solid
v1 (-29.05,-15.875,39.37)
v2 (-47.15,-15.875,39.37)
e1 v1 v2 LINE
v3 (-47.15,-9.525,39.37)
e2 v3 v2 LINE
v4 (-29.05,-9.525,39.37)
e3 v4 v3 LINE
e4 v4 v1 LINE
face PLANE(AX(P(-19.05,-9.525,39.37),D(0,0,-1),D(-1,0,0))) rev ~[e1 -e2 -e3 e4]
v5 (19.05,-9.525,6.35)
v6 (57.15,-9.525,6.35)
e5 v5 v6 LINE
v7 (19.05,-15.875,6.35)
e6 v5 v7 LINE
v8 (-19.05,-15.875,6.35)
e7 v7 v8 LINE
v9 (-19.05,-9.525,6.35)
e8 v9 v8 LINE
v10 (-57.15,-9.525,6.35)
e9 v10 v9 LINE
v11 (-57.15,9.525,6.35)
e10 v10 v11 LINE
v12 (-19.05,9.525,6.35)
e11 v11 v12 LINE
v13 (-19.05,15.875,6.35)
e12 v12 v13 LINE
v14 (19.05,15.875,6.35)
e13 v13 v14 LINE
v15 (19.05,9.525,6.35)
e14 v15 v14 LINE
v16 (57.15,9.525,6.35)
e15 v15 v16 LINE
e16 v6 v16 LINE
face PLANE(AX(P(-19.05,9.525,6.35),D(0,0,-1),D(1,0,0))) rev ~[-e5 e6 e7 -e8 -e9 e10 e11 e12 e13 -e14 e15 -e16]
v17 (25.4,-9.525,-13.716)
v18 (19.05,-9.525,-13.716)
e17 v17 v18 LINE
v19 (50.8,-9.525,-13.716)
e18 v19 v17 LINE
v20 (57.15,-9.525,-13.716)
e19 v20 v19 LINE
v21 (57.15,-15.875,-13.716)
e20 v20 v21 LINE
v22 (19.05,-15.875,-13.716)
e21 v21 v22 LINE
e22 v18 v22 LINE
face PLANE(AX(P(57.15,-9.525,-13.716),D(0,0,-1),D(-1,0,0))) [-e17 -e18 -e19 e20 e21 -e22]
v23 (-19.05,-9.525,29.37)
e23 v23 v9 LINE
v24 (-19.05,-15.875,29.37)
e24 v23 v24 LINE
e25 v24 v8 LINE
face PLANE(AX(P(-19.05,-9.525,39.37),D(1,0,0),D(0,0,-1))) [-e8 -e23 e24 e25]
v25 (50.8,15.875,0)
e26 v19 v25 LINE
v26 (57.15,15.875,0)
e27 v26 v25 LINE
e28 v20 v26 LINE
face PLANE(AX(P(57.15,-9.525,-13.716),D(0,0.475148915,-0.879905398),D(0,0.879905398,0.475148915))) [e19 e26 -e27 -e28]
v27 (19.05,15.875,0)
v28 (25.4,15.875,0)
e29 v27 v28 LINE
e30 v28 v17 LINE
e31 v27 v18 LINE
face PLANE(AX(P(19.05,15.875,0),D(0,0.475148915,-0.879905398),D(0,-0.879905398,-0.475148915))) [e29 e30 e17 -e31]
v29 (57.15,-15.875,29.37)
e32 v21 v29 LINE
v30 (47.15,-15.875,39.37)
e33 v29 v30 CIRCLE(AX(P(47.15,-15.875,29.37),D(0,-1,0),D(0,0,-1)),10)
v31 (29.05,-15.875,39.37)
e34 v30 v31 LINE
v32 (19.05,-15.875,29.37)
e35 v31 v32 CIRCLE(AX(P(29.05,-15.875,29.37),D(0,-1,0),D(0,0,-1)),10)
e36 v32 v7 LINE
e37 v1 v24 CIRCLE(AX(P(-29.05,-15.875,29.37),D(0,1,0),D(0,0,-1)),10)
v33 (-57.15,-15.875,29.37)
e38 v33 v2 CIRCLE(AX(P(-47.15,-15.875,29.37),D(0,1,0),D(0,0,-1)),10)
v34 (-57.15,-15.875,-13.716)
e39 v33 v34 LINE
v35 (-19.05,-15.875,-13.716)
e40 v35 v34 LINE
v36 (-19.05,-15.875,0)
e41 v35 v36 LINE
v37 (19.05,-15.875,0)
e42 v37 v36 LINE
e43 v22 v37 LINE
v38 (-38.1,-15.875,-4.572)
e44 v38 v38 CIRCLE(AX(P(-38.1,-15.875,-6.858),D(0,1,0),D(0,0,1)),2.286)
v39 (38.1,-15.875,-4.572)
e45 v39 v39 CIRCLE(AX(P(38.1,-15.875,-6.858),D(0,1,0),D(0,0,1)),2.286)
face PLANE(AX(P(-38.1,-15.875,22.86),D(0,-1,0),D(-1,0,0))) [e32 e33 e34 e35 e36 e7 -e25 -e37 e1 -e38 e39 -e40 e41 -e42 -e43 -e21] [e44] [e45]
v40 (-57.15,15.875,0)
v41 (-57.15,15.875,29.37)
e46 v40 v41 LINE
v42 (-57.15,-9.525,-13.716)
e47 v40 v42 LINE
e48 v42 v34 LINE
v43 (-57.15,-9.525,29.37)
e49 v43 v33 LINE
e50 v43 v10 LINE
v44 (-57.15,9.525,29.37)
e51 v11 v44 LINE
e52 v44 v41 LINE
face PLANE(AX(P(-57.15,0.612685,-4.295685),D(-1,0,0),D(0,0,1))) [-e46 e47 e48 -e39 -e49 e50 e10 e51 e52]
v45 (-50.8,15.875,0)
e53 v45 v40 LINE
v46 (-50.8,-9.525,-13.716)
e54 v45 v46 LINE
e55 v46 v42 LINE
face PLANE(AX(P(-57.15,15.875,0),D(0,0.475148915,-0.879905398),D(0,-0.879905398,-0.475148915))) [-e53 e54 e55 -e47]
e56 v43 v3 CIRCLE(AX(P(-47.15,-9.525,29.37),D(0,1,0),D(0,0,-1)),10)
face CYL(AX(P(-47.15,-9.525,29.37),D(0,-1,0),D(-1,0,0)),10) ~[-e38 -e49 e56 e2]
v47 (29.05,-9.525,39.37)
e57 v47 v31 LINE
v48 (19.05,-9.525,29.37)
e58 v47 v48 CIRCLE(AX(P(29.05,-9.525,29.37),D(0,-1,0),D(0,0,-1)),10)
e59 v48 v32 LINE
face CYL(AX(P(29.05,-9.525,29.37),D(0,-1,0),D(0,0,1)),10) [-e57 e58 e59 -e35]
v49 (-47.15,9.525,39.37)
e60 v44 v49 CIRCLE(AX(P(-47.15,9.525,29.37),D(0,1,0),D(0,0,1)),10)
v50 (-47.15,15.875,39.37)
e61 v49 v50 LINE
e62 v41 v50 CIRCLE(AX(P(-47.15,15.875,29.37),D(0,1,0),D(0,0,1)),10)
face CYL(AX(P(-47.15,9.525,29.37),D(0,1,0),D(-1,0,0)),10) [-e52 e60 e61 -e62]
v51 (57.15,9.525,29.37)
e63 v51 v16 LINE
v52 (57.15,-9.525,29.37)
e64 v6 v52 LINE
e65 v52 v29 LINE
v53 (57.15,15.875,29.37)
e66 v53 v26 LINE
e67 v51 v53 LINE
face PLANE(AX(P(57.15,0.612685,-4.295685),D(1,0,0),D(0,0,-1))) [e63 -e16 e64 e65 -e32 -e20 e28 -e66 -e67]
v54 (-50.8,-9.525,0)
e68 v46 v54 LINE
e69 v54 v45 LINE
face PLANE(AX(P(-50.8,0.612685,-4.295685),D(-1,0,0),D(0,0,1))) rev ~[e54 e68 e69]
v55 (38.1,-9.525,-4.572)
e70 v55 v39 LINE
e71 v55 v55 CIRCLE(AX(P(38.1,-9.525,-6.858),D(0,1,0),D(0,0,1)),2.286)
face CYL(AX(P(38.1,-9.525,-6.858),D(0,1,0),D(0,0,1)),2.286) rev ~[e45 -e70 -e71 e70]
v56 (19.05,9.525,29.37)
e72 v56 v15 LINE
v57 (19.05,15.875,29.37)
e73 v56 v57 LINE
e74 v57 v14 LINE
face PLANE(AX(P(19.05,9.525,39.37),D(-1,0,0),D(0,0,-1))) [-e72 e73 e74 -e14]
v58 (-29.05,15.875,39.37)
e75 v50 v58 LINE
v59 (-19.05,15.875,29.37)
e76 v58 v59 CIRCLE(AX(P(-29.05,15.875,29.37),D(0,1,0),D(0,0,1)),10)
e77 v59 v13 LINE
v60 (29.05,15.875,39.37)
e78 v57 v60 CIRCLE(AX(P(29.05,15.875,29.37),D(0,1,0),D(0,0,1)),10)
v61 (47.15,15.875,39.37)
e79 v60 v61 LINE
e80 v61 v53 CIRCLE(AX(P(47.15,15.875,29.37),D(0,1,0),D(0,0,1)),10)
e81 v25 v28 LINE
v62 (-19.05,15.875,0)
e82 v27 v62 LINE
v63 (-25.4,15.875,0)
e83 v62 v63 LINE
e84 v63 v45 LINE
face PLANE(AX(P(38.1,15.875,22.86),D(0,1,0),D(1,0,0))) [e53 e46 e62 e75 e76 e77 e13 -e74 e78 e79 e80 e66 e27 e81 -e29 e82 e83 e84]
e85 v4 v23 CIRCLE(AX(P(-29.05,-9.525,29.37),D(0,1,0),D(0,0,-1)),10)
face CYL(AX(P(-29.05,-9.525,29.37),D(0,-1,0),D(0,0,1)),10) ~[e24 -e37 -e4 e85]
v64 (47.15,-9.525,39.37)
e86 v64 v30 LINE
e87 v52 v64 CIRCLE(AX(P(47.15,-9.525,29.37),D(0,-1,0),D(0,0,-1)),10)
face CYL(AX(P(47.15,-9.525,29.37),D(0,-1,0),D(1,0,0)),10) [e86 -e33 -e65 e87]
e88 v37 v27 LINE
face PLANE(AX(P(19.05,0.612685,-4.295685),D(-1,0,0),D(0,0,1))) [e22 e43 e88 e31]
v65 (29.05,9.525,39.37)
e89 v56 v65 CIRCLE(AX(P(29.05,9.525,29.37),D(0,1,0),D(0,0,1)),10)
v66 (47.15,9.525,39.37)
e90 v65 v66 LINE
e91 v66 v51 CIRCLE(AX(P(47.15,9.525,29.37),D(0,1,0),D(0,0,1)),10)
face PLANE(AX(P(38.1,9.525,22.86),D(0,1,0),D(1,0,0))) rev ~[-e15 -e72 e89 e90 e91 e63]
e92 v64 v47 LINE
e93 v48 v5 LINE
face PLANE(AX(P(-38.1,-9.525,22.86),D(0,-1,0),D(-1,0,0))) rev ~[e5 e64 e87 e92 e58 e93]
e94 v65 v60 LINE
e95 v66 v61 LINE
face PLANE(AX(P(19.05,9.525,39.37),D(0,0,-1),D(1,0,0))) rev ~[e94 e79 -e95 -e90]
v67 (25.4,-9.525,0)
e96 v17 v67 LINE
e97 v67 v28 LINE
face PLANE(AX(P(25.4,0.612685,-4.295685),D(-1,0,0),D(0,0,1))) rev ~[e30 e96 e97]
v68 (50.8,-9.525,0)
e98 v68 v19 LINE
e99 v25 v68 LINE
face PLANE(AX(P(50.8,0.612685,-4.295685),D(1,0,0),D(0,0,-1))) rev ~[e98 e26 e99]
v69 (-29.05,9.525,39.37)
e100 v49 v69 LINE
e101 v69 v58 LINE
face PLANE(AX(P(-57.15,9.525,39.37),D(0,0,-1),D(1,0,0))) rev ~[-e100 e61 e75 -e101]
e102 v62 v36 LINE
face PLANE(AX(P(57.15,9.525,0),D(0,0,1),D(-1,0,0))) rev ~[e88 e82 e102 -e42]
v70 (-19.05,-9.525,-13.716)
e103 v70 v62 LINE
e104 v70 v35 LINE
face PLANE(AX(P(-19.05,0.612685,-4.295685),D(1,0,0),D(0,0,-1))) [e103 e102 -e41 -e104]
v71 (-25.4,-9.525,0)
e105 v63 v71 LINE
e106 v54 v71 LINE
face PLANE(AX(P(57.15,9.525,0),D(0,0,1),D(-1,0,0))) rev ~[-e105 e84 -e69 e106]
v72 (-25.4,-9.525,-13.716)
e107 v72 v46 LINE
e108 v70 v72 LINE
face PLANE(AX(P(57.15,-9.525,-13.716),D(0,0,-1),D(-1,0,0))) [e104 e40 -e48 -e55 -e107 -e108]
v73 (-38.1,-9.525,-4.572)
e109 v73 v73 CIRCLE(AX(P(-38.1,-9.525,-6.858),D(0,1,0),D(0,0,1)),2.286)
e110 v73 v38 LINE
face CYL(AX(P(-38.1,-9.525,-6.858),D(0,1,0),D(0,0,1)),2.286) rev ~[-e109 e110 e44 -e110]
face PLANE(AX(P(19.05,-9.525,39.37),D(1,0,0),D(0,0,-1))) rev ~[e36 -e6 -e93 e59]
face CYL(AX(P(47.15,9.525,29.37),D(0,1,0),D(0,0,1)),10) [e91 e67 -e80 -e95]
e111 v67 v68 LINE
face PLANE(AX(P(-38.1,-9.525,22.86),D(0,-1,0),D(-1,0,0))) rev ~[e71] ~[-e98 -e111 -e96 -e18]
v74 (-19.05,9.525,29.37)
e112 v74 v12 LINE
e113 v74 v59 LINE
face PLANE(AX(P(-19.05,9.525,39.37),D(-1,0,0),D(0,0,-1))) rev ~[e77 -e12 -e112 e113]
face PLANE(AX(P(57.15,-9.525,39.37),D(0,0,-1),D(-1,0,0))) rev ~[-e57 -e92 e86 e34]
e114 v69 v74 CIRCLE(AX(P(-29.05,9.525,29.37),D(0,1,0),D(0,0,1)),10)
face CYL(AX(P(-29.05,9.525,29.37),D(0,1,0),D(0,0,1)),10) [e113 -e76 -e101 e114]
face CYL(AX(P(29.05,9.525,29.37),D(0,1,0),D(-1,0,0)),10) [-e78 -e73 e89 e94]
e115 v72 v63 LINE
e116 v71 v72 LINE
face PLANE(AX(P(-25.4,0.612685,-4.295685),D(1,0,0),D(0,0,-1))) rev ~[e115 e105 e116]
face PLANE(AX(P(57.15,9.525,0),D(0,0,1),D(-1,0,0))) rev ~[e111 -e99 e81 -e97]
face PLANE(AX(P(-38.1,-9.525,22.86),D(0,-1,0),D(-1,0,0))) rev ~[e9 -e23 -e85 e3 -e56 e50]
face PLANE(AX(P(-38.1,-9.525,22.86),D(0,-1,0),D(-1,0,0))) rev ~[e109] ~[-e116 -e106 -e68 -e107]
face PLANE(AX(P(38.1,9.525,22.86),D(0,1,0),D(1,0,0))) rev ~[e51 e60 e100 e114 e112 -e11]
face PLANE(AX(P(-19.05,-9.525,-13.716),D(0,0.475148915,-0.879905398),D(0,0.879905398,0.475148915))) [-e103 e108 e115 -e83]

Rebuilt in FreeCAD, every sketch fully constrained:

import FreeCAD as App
import Part
import Sketcher
from FreeCAD import Vector
Q = App.Units.Quantity


def edges_at(feature, points):
    """Names of the edges that pass closest to the given points."""
    edges = feature.Shape.Edges
    near = lambda p: min(range(len(edges)), key=lambda i: edges[i].distToShape(Part.Vertex(*p))[0])
    return sorted({f"Edge{near(p) + 1}" for p in points})


def add_polygon(sketch, points):
    """Adds a closed chain of lines whose ends are joined by coincident constraints."""
    first, n = sketch.GeometryCount, len(points)
    for a, b in zip(points, points[1:] + points[:1]):
        sketch.addGeometry(Part.LineSegment(App.Vector(*a, 0), App.Vector(*b, 0)), False)
    for i in range(n):
        sketch.addConstraint(Sketcher.Constraint("Coincident", first + i, 2, first + (i + 1) % n, 1))

doc = App.newDocument("Part")
params = doc.addObject("Spreadsheet::Sheet", "Params")
for row, (alias, value) in enumerate([
    ("sketch1_width", "4.5 in"),
    ("sketch1_height", "0.75 in"),
    ("pad1_length", "0.25 in"),
    ("sketch2_width", "1.5 in"),
    ("sketch2_height", "1.3 in"),
    ("sketch2_height2", "2.09 in"),
    ("pad2_length", "0.25 in"),
    ("sketch3_width", "1.5 in"),
    ("sketch3_height", "1.3 in"),
    ("sketch3_height2", "1.55 in"),
    ("pad3_length", "0.25 in"),
    ("sketch4_width", "1.5 in"),
    ("sketch4_height", "0.54 in"),
    ("sketch5_width", "1 in"),
    ("sketch5_height", "0.54 in"),
    ("pad4_length", "0.25 in"),
    ("sketch6_width", "1 in"),
    ("sketch6_height", "0.54 in"),
    ("pad5_length", "0.25 in"),
    ("sketch7_width", "1 in"),
    ("sketch7_height", "0.54 in"),
    ("pad6_length", "0.25 in"),
    ("sketch8_width", "1 in"),
    ("sketch8_height", "0.54 in"),
    ("pad7_length", "0.25 in"),
    ("sketch9_diameter", "0.18 in"),
    ("fillet_radius", "10 mm"),
], start=1):
    params.set(f"A{row}", alias)
    params.set(f"B{row}", "=" + value)
    params.setAlias(f"B{row}", alias)

body = doc.addObject("PartDesign::Body", "Body")

sketch1 = body.newObject("Sketcher::SketchObject", "Sketch")
sketch1.AttachmentSupport = (doc.getObject("XY_Plane"), [""])
sketch1.MapMode = "FlatFace"
add_polygon(sketch1, [(-57, 10), (-57, -10), (57, -10), (57, 10)])
sketch1.addConstraint([
    Sketcher.Constraint("Vertical", 0),
    Sketcher.Constraint("Horizontal", 1),
    Sketcher.Constraint("Vertical", 2),
    Sketcher.Constraint("Horizontal", 3),
    Sketcher.Constraint("Symmetric", 0, 2, 2, 2, -1, 1),
    Sketcher.Constraint("DistanceX", 1, 1, 1, 2, Q("4.5 in")),
    Sketcher.Constraint("DistanceY", 0, 2, 0, 1, Q("0.75 in")),
])
sketch1.setExpression("Constraints[9]", "Params.sketch1_width")
sketch1.setExpression("Constraints[10]", "Params.sketch1_height")
pad1 = body.newObject("PartDesign::Pad", "Pad")
pad1.Profile = sketch1
pad1.setExpression("Length", "Params.pad1_length")

sketch2 = body.newObject("Sketcher::SketchObject", "Sketch001")
sketch2.AttachmentSupport = (doc.getObject("XZ_Plane"), [""])
sketch2.MapMode = "FlatFace"
sketch2.AttachmentOffset = App.Placement(Vector(0, 0, 0.375 * 25.4), App.Rotation())
add_polygon(sketch2, [(-19, 6), (-19, 39), (-57, 39), (-57, -14), (57, -14), (57, 39), (19, 39), (19, 6)])
sketch2.addConstraint([
    Sketcher.Constraint("Vertical", 0),
    Sketcher.Constraint("Horizontal", 1),
    Sketcher.Constraint("Vertical", 2),
    Sketcher.Constraint("Horizontal", 3),
    Sketcher.Constraint("Vertical", 4),
    Sketcher.Constraint("Horizontal", 5),
    Sketcher.Constraint("Vertical", 6),
    Sketcher.Constraint("Horizontal", 7),
    Sketcher.Constraint("Symmetric", 1, 2, 4, 2, -2),
    Sketcher.Constraint("Equal", 1, 5),
    Sketcher.Constraint("Equal", 5, 7),
    Sketcher.Constraint("DistanceX", 1, 2, 1, 1, Q("1.5 in")),
    Sketcher.Constraint("DistanceY", 0, 1, 0, 2, Q("1.3 in")),
    Sketcher.Constraint("DistanceY", 2, 2, 2, 1, Q("2.09 in")),
    Sketcher.Constraint("DistanceY", -1, 1, 0, 2, Q("1.55 in")),
])
sketch2.setExpression("Constraints[19]", "Params.sketch2_width")
sketch2.setExpression("Constraints[20]", "Params.sketch2_height")
sketch2.setExpression("Constraints[21]", "Params.sketch2_height2")
pad2 = body.newObject("PartDesign::Pad", "Pad001")
pad2.Profile = sketch2
pad2.setExpression("Length", "Params.pad2_length")

sketch3 = body.newObject("Sketcher::SketchObject", "Sketch002")
sketch3.AttachmentSupport = (doc.getObject("XZ_Plane"), [""])
sketch3.MapMode = "FlatFace"
sketch3.AttachmentOffset = App.Placement(Vector(0, 0, -0.375 * 25.4), App.Rotation())
add_polygon(sketch3, [(19, 6), (19, 39), (57, 39), (57, 0), (-57, 0), (-57, 39), (-19, 39), (-19, 6)])
sketch3.addConstraint([
    Sketcher.Constraint("Vertical", 0),
    Sketcher.Constraint("Horizontal", 1),
    Sketcher.Constraint("Vertical", 2),
    Sketcher.Constraint("Horizontal", 3),
    Sketcher.Constraint("Vertical", 4),
    Sketcher.Constraint("Horizontal", 5),
    Sketcher.Constraint("Vertical", 6),
    Sketcher.Constraint("Horizontal", 7),
    Sketcher.Constraint("Symmetric", 2, 2, 3, 2, -1, 1),
    Sketcher.Constraint("Symmetric", 0, 2, 5, 2, -2),
    Sketcher.Constraint("Equal", 5, 7),
    Sketcher.Constraint("DistanceX", 1, 1, 1, 2, Q("1.5 in")),
    Sketcher.Constraint("DistanceY", 0, 1, 0, 2, Q("1.3 in")),
    Sketcher.Constraint("DistanceY", 2, 2, 2, 1, Q("1.55 in")),
])
sketch3.setExpression("Constraints[19]", "Params.sketch3_width")
sketch3.setExpression("Constraints[20]", "Params.sketch3_height")
sketch3.setExpression("Constraints[21]", "Params.sketch3_height2")
pad3 = body.newObject("PartDesign::Pad", "Pad002")
pad3.Profile = sketch3
pad3.setExpression("Length", "Params.pad3_length")
pad3.Reversed = True

sketch4 = body.newObject("Sketcher::SketchObject", "Sketch003")
sketch4.AttachmentSupport = (doc.getObject("XZ_Plane"), [""])
sketch4.MapMode = "FlatFace"
sketch4.AttachmentOffset = App.Placement(Vector(0, 0, 0.375 * 25.4), App.Rotation())
add_polygon(sketch4, [(-19, -14), (-19, 0), (19, 0), (19, -14)])
sketch4.addConstraint([
    Sketcher.Constraint("Vertical", 0),
    Sketcher.Constraint("Horizontal", 1),
    Sketcher.Constraint("Vertical", 2),
    Sketcher.Constraint("Horizontal", 3),
    Sketcher.Constraint("Symmetric", 0, 2, 1, 2, -1, 1),
    Sketcher.Constraint("DistanceX", 1, 1, 1, 2, Q("1.5 in")),
    Sketcher.Constraint("DistanceY", 0, 1, 0, 2, Q("0.54 in")),
])
sketch4.setExpression("Constraints[9]", "Params.sketch4_width")
sketch4.setExpression("Constraints[10]", "Params.sketch4_height")
pocket1 = body.newObject("PartDesign::Pocket", "Pocket")
pocket1.Profile = sketch4
pocket1.Type = "ThroughAll"
pocket1.Reversed = True

sketch5 = body.newObject("Sketcher::SketchObject", "Sketch004")
sketch5.AttachmentSupport = (doc.getObject("YZ_Plane"), [""])
sketch5.MapMode = "FlatFace"
sketch5.AttachmentOffset = App.Placement(Vector(0, 0, 2.25 * 25.4), App.Rotation())
add_polygon(sketch5, [(-10, -14), (16, 0), (-10, 0)])
sketch5.addConstraint([
    Sketcher.Constraint("Horizontal", 1),
    Sketcher.Constraint("Vertical", 2),
    Sketcher.Constraint("PointOnObject", 0, 2, -1),
    Sketcher.Constraint("DistanceX", 1, 2, 1, 1, Q("1 in")),
    Sketcher.Constraint("DistanceY", 2, 2, 2, 1, Q("0.54 in")),
    Sketcher.Constraint("DistanceX", -1, 1, 0, 2, Q("0.625 in")),
])
sketch5.setExpression("Constraints[6]", "Params.sketch5_width")
sketch5.setExpression("Constraints[7]", "Params.sketch5_height")
pad4 = body.newObject("PartDesign::Pad", "Pad003")
pad4.Profile = sketch5
pad4.setExpression("Length", "Params.pad4_length")
pad4.Reversed = True

sketch6 = body.newObject("Sketcher::SketchObject", "Sketch005")
sketch6.AttachmentSupport = (doc.getObject("YZ_Plane"), [""])
sketch6.MapMode = "FlatFace"
sketch6.AttachmentOffset = App.Placement(Vector(0, 0, 0.75 * 25.4), App.Rotation())
add_polygon(sketch6, [(-10, -14), (-10, 0), (16, 0)])
sketch6.addConstraint([
    Sketcher.Constraint("Vertical", 0),
    Sketcher.Constraint("Horizontal", 1),
    Sketcher.Constraint("PointOnObject", 0, 2, -1),
    Sketcher.Constraint("DistanceX", 1, 1, 1, 2, Q("1 in")),
    Sketcher.Constraint("DistanceY", 0, 1, 0, 2, Q("0.54 in")),
    Sketcher.Constraint("DistanceX", 0, 2, -1, 1, Q("0.375 in")),
])
sketch6.setExpression("Constraints[6]", "Params.sketch6_width")
sketch6.setExpression("Constraints[7]", "Params.sketch6_height")
pad5 = body.newObject("PartDesign::Pad", "Pad004")
pad5.Profile = sketch6
pad5.setExpression("Length", "Params.pad5_length")

sketch7 = body.newObject("Sketcher::SketchObject", "Sketch006")
sketch7.AttachmentSupport = (doc.getObject("YZ_Plane"), [""])
sketch7.MapMode = "FlatFace"
sketch7.AttachmentOffset = App.Placement(Vector(0, 0, -0.75 * 25.4), App.Rotation())
add_polygon(sketch7, [(-10, -14), (16, 0), (-10, 0)])
sketch7.addConstraint([
    Sketcher.Constraint("Horizontal", 1),
    Sketcher.Constraint("Vertical", 2),
    Sketcher.Constraint("PointOnObject", 0, 2, -1),
    Sketcher.Constraint("DistanceX", 1, 2, 1, 1, Q("1 in")),
    Sketcher.Constraint("DistanceY", 2, 2, 2, 1, Q("0.54 in")),
    Sketcher.Constraint("DistanceX", -1, 1, 0, 2, Q("0.625 in")),
])
sketch7.setExpression("Constraints[6]", "Params.sketch7_width")
sketch7.setExpression("Constraints[7]", "Params.sketch7_height")
pad6 = body.newObject("PartDesign::Pad", "Pad005")
pad6.Profile = sketch7
pad6.setExpression("Length", "Params.pad6_length")
pad6.Reversed = True

sketch8 = body.newObject("Sketcher::SketchObject", "Sketch007")
sketch8.AttachmentSupport = (doc.getObject("YZ_Plane"), [""])
sketch8.MapMode = "FlatFace"
sketch8.AttachmentOffset = App.Placement(Vector(0, 0, -2.25 * 25.4), App.Rotation())
add_polygon(sketch8, [(-10, -14), (-10, 0), (16, 0)])
sketch8.addConstraint([
    Sketcher.Constraint("Vertical", 0),
    Sketcher.Constraint("Horizontal", 1),
    Sketcher.Constraint("PointOnObject", 0, 2, -1),
    Sketcher.Constraint("DistanceX", 1, 1, 1, 2, Q("1 in")),
    Sketcher.Constraint("DistanceY", 0, 1, 0, 2, Q("0.54 in")),
    Sketcher.Constraint("DistanceX", 0, 2, -1, 1, Q("0.375 in")),
])
sketch8.setExpression("Constraints[6]", "Params.sketch8_width")
sketch8.setExpression("Constraints[7]", "Params.sketch8_height")
pad7 = body.newObject("PartDesign::Pad", "Pad006")
pad7.Profile = sketch8
pad7.setExpression("Length", "Params.pad7_length")

sketch9 = body.newObject("Sketcher::SketchObject", "Sketch008")
sketch9.AttachmentSupport = (doc.getObject("XZ_Plane"), [""])
sketch9.MapMode = "FlatFace"
sketch9.AttachmentOffset = App.Placement(Vector(0, 0, 0.375 * 25.4), App.Rotation())
sketch9.addGeometry([
    Part.Circle(Vector(38.1, -6.9, 0), Vector(0, 0, 1), 2.3),
    Part.Circle(Vector(-38.1, -6.9, 0), Vector(0, 0, 1), 2.3),
], False)
sketch9.addConstraint([
    Sketcher.Constraint("Equal", 0, 1),
    Sketcher.Constraint("Symmetric", 0, 3, 1, 3, -2),
    Sketcher.Constraint("Diameter", 0, Q("0.18 in")),
    Sketcher.Constraint("DistanceX", 1, 3, 0, 3, Q("3 in")),
    Sketcher.Constraint("DistanceY", 0, 3, -1, 1, Q("0.27 in")),
])
sketch9.setExpression("Constraints[2]", "Params.sketch9_diameter")
pocket2 = body.newObject("PartDesign::Pocket", "Pocket001")
pocket2.Profile = sketch9
pocket2.Type = "ThroughAll"
pocket2.Reversed = True
doc.recompute()

fillet = body.newObject("PartDesign::Fillet", "Fillet")
fillet.Base = (pocket2, edges_at(pocket2, [
    (-19.05, -12.7, 39.37),
    (-57.15, -12.7, 39.37),
    (57.15, -12.7, 39.37),
    (19.05, -12.7, 39.37),
    (19.05, 12.7, 39.37),
    (57.15, 12.7, 39.37),
    (-57.15, 12.7, 39.37),
    (-19.05, 12.7, 39.37),
]))
fillet.setExpression("Radius", "Params.fillet_radius")

doc.recompute()
